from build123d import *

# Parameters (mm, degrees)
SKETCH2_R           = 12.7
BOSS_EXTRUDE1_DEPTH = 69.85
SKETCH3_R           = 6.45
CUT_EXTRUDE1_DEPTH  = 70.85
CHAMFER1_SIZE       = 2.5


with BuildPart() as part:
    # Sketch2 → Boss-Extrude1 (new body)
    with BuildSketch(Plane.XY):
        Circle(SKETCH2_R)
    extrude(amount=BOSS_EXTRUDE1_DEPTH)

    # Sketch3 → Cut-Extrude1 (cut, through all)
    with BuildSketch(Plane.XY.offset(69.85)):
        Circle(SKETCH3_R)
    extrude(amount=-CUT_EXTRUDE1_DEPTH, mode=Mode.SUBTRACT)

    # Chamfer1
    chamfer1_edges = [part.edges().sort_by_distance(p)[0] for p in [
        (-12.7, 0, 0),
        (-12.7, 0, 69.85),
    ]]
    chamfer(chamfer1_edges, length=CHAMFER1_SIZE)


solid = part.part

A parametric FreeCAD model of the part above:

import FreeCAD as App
import Part
import Sketcher

V = App.Vector
Q = App.Units.Quantity


def edges_at(feature, points):
    """Names of the edges that pass closest to the given points."""
    edges = feature.Shape.Edges
    near = lambda p: min(range(len(edges)), key=lambda i: edges[i].distToShape(Part.Vertex(*p))[0])
    return sorted({f"Edge{near(p) + 1}" for p in points})

doc = App.newDocument("Part")
body = doc.addObject("PartDesign::Body", "Body")

sketch1 = body.newObject("Sketcher::SketchObject", "Sketch")
sketch1.AttachmentSupport = (doc.getObject("XY_Plane"), [""])
sketch1.MapMode = "FlatFace"
sketch1.addGeometry(Part.Circle(V(0, 0, 0), V(0, 0, 1), 13), False)
sketch1.addConstraint(Sketcher.Constraint("Coincident", 0, 3, -1, 1))
sketch1.addConstraint(Sketcher.Constraint("Diameter", 0, Q("25.4 mm")))
pad1 = body.newObject("PartDesign::Pad", "Pad")
pad1.Profile = sketch1
pad1.Length = 69.85

sketch2 = body.newObject("Sketcher::SketchObject", "Sketch001")
sketch2.AttachmentSupport = (doc.getObject("XY_Plane"), [""])
sketch2.MapMode = "FlatFace"
sketch2.AttachmentOffset = App.Placement(V(0, 0, 69.85), App.Rotation())
sketch2.addGeometry(Part.Circle(V(0, 0, 0), V(0, 0, 1), 6), False)
sketch2.addConstraint(Sketcher.Constraint("Coincident", 0, 3, -1, 1))
sketch2.addConstraint(Sketcher.Constraint("Diameter", 0, Q("12.9 mm")))
pocket1 = body.newObject("PartDesign::Pocket", "Pocket")
pocket1.Profile = sketch2
pocket1.Type = "ThroughAll"
doc.recompute()

chamfer = body.newObject("PartDesign::Chamfer", "Chamfer")
chamfer.Base = (pocket1, edges_at(pocket1, [(-12.7, 0, 0), (-12.7, 0, 69.85)]))
chamfer.Size = 2.5

doc.recompute()
